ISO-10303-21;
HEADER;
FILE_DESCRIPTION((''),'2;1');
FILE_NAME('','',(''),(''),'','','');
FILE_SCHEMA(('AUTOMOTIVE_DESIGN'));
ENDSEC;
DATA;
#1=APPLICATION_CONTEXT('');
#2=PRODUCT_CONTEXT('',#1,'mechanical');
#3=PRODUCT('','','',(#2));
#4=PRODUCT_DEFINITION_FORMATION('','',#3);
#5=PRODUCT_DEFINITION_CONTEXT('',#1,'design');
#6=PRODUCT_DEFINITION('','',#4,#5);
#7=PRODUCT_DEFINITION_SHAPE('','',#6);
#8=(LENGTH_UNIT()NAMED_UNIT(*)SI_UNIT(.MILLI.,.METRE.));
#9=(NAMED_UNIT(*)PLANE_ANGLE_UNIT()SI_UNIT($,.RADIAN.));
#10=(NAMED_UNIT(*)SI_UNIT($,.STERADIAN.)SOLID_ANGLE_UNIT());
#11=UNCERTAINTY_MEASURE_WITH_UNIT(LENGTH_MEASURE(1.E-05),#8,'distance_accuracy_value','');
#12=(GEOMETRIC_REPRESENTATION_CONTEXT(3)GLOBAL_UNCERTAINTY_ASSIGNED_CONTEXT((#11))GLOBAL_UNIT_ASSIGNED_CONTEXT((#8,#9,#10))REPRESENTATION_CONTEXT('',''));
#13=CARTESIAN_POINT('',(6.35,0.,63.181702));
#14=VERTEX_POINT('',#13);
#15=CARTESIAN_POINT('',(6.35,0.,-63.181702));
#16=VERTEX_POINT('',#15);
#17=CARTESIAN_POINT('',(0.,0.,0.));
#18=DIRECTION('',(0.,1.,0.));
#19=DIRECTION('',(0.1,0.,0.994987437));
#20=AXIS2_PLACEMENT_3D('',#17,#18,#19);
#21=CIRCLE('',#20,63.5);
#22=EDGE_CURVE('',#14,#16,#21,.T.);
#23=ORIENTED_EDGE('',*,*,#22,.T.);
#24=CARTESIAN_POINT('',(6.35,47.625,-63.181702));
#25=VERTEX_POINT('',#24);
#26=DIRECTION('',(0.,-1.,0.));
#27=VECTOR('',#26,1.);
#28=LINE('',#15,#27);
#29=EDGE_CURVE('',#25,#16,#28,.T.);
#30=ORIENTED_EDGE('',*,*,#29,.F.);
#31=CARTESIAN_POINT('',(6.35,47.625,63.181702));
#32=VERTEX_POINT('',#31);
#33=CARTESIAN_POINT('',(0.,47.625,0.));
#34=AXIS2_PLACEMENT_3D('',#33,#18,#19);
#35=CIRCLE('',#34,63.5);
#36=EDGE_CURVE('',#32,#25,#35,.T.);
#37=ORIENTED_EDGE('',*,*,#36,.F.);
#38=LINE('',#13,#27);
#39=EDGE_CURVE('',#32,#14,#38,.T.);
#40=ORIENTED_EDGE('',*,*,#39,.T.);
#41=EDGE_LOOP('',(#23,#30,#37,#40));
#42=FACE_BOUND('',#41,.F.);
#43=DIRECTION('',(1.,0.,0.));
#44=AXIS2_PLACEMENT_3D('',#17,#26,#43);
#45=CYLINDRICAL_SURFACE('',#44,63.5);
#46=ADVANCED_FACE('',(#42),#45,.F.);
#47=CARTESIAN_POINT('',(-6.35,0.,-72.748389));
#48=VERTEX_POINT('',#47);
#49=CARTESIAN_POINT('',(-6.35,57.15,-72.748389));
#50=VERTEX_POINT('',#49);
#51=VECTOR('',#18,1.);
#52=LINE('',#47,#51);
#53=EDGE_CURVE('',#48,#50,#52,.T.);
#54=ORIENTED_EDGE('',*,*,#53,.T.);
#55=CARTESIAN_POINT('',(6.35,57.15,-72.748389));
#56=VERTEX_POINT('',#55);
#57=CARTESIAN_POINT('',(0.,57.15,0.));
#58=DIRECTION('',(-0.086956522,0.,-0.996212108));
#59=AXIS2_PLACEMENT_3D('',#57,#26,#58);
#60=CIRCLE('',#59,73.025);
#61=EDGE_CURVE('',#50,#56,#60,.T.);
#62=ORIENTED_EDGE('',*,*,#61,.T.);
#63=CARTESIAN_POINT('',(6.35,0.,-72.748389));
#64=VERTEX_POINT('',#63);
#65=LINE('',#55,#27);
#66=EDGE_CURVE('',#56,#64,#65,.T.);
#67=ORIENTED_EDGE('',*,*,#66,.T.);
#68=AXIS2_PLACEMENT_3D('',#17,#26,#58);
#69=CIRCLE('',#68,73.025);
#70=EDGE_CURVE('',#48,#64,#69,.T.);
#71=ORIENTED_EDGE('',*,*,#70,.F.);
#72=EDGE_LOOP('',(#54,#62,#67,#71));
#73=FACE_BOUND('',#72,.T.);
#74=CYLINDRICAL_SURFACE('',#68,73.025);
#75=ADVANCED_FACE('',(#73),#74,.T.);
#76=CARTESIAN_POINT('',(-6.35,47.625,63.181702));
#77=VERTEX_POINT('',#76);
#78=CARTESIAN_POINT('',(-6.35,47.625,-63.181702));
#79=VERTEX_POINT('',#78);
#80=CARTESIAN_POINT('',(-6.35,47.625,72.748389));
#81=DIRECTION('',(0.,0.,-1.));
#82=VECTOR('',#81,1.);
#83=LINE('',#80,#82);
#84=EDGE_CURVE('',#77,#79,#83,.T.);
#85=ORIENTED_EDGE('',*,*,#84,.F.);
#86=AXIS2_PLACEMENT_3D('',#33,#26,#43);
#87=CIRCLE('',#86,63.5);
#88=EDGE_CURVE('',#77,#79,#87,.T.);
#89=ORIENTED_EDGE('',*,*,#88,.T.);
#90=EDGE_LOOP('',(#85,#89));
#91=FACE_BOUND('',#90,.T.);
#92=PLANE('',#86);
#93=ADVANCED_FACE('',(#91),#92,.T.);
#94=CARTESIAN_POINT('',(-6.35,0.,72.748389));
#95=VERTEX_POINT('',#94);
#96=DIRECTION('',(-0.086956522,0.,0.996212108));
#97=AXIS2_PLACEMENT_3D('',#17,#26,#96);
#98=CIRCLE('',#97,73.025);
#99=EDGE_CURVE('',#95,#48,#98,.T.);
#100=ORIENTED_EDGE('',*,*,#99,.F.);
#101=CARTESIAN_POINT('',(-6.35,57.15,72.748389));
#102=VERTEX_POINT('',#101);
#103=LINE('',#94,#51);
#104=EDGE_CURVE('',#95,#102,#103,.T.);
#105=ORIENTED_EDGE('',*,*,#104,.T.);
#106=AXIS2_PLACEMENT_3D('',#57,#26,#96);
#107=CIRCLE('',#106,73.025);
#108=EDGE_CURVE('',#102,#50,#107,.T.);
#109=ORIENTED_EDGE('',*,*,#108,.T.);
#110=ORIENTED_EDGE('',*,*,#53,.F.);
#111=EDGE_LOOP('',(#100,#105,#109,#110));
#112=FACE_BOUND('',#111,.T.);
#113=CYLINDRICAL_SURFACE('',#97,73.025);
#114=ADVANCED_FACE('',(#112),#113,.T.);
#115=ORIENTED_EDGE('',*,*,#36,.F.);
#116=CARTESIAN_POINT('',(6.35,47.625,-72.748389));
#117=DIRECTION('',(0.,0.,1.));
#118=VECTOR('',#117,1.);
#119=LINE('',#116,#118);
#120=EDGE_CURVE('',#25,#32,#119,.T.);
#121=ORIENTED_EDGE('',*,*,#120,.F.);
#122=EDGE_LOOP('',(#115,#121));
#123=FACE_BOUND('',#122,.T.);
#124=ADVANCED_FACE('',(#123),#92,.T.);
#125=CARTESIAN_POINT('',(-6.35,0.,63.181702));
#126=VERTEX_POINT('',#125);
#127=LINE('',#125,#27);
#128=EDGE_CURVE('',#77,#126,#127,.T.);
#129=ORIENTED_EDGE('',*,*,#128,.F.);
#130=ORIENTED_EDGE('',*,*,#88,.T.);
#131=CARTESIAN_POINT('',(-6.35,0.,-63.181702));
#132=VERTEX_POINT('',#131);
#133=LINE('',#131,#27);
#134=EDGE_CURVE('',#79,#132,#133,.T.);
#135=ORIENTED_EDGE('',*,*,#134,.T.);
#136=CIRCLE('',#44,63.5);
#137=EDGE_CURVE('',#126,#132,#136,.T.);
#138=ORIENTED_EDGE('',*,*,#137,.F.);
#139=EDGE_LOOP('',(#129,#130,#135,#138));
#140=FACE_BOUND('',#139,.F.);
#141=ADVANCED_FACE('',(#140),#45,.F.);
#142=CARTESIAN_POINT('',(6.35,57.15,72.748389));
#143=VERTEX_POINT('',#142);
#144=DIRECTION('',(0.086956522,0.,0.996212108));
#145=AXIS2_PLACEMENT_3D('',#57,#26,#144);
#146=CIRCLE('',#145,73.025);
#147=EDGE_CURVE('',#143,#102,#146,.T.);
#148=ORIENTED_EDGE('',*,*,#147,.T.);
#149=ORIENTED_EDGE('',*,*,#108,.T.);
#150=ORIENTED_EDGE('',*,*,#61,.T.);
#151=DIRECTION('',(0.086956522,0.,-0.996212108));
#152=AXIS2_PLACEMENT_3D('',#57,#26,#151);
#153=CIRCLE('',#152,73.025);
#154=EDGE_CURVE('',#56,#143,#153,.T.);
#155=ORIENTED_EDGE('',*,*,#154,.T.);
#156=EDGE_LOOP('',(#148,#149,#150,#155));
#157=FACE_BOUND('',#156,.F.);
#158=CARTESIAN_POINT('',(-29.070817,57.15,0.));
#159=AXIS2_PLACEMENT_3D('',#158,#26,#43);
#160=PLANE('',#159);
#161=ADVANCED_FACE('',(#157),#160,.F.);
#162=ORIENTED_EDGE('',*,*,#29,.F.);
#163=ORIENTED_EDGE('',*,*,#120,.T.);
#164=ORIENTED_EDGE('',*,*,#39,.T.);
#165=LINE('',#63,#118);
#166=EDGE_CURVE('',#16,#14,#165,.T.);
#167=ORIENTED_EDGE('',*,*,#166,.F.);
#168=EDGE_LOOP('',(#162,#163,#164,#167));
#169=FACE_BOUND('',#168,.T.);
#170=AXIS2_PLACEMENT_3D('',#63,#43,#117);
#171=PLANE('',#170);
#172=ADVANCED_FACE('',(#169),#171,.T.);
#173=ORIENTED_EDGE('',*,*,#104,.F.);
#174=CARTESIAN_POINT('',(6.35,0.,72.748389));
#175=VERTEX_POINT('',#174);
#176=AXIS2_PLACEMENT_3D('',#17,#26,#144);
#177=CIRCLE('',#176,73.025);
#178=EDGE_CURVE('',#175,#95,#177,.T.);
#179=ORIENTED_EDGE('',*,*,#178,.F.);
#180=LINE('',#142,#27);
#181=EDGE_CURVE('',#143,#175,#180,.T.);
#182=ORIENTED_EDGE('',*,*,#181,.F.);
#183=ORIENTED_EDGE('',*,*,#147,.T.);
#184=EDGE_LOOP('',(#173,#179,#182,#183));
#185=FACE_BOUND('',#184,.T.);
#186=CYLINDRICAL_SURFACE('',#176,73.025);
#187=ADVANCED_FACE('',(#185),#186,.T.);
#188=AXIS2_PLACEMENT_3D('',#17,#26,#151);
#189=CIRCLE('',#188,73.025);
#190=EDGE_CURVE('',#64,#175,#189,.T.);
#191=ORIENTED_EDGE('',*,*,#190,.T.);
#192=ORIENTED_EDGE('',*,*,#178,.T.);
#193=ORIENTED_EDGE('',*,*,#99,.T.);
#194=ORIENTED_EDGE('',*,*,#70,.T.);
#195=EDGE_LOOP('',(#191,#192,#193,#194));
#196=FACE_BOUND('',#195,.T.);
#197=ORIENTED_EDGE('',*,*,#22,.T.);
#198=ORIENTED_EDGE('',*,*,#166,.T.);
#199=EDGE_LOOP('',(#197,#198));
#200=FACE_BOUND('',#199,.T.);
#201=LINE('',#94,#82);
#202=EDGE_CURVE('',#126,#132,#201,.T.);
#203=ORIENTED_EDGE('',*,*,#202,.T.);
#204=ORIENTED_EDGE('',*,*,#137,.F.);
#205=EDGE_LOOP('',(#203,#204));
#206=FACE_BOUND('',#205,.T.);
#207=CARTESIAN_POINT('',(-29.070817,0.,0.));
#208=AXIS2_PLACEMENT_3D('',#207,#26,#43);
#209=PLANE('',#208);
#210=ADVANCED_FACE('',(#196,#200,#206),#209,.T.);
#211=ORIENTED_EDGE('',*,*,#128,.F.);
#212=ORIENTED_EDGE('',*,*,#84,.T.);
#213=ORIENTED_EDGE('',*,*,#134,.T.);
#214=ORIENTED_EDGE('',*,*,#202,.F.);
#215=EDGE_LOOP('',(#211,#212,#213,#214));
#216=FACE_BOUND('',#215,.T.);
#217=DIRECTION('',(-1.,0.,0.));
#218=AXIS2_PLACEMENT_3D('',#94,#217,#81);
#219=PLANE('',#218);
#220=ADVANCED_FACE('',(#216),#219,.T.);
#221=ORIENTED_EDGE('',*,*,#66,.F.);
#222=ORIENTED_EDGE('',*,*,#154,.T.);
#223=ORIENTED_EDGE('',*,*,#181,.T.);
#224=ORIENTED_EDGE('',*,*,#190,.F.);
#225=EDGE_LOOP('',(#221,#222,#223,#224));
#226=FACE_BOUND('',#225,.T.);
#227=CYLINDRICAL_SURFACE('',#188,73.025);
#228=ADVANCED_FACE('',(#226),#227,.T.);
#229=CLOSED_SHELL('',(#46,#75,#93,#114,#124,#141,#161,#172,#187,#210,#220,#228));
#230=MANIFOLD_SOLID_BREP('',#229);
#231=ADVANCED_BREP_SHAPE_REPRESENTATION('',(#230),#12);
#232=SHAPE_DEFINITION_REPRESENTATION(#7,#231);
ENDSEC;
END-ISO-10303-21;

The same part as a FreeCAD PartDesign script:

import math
import FreeCAD as App
import Part
import Sketcher
Q = App.Units.Quantity

doc = App.newDocument("Part")
body = doc.addObject("PartDesign::Body", "Body")

sketch1 = doc.addObject("Sketcher::SketchObject", "Sketch")
body.addObject(sketch1)
sketch1.AttachmentSupport = (doc.XZ_Plane, [""])
sketch1.MapMode = "FlatFace"
sketch1.addGeometry([
    Part.ArcOfCircle(Part.Circle(App.Vector(0, 0, 0), App.Vector(0, 0, 1), 73), math.radians(95), math.radians(265)),
    Part.ArcOfCircle(Part.Circle(App.Vector(0, 0, 0), App.Vector(0, 0, 1), 73), math.radians(-94.99), math.radians(-85.01)),
    Part.ArcOfCircle(Part.Circle(App.Vector(0, 0, 0), App.Vector(0, 0, 1), 73), math.radians(-85), math.radians(85)),
    Part.ArcOfCircle(Part.Circle(App.Vector(0, 0, 0), App.Vector(0, 0, 1), 73), math.radians(85.01), math.radians(94.99)),
], False)
sketch1.addConstraint([
    Sketcher.Constraint("Tangent", 0, 2, 1, 1),
    Sketcher.Constraint("Tangent", 1, 2, 2, 1),
    Sketcher.Constraint("Tangent", 2, 2, 3, 1),
    Sketcher.Constraint("Coincident", 3, 2, 0, 1),
    Sketcher.Constraint("Coincident", 0, 3, -1, 1),
    Sketcher.Constraint("Coincident", 2, 3, -1, 1),
    Sketcher.Constraint("Horizontal", 0, 2, 1, 2),
    Sketcher.Constraint("Horizontal", 2, 2, 3, 2),
    Sketcher.Constraint("Vertical", 1, 2, 2, 2),
    Sketcher.Constraint("Radius", 0, Q("2.875 in")),
    Sketcher.Constraint("DistanceX", 0, 2, 1, 2, Q("0.5 in")),
])
pad1 = doc.addObject("PartDesign::Pad", "Pad")
body.addObject(pad1)
pad1.Profile = sketch1
pad1.Length = Q("2.25 in")
pad1.Reversed = True

sketch2 = doc.addObject("Sketcher::SketchObject", "Sketch001")
body.addObject(sketch2)
sketch2.AttachmentSupport = (doc.XZ_Plane, [""])
sketch2.MapMode = "FlatFace"
sketch2.addGeometry(Part.Circle(App.Vector(0, 0, 0), App.Vector(0, 0, 1), 64), False)
sketch2.addConstraint([
    Sketcher.Constraint("Coincident", 0, 3, -1, 1),
    Sketcher.Constraint("Diameter", 0, Q("5 in")),
])
pocket1 = doc.addObject("PartDesign::Pocket", "Pocket")
body.addObject(pocket1)
pocket1.Profile = sketch2
pocket1.Length = Q("1.875 in")

sketch3 = doc.addObject("Sketcher::SketchObject", "Sketch002")
body.addObject(sketch3)
sketch3.AttachmentSupport = (doc.XZ_Plane, [""])
sketch3.MapMode = "FlatFace"
sketch3.addGeometry([
    Part.ArcOfCircle(Part.Circle(App.Vector(0, 0, 0), App.Vector(0, 0, 1), 73), math.radians(-94.99), math.radians(-85.01)),
    Part.LineSegment(App.Vector(6, -73, 0), App.Vector(6, 73, 0)),
    Part.ArcOfCircle(Part.Circle(App.Vector(0, 0, 0), App.Vector(0, 0, 1), 73), math.radians(85.01), math.radians(94.99)),
    Part.LineSegment(App.Vector(-6, 73, 0), App.Vector(-6, -73, 0)),
], False)
sketch3.addConstraint([
    Sketcher.Constraint("Coincident", 0, 2, 1, 1),
    Sketcher.Constraint("Coincident", 1, 2, 2, 1),
    Sketcher.Constraint("Coincident", 2, 2, 3, 1),
    Sketcher.Constraint("Coincident", 3, 2, 0, 1),
    Sketcher.Constraint("Vertical", 1),
    Sketcher.Constraint("Vertical", 3),
    Sketcher.Constraint("Coincident", 0, 3, -1, 1),
    Sketcher.Constraint("Coincident", 2, 3, -1, 1),
    Sketcher.Constraint("Equal", 0, 2),
    Sketcher.Constraint("Horizontal", 1, 2, 2, 2),
    Sketcher.Constraint("Radius", 0, Q("2.875 in")),
    Sketcher.Constraint("DistanceX", 2, 2, 1, 2, Q("0.5 in")),
])
pad2 = doc.addObject("PartDesign::Pad", "Pad001")
body.addObject(pad2)
pad2.Profile = sketch3
pad2.Length = Q("1.875 in")
pad2.Reversed = True

doc.recompute()
